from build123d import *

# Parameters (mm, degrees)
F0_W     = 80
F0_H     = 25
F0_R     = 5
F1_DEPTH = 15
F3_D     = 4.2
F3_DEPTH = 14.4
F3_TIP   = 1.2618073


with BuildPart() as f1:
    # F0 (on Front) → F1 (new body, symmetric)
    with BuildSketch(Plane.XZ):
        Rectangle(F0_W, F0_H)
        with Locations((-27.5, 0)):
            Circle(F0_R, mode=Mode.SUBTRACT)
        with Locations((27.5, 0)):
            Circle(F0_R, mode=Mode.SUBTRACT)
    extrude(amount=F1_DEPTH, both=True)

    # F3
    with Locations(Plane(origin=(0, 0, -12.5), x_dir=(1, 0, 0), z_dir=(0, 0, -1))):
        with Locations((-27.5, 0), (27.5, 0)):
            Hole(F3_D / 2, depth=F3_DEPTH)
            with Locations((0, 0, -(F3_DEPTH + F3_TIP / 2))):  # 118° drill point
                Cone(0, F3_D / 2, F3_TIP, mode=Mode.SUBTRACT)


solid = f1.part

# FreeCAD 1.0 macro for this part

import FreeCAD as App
import Part
import Sketcher

doc = App.newDocument("Part")
body = doc.addObject("PartDesign::Body", "Body")

# Sketch on XZ plane
sketch1 = body.newObject("Sketcher::SketchObject", "Sketch")
sketch1.AttachmentSupport = (doc.getObject("XZ_Plane"), [""])
sketch1.MapMode = "FlatFace"
sketch1.addGeometry([
    Part.LineSegment(App.Vector(-40, 12, 0), App.Vector(-40, -12, 0)),  # 0
    Part.LineSegment(App.Vector(-40, -12, 0), App.Vector(40, -12, 0)),  # 1
    Part.LineSegment(App.Vector(40, -12, 0), App.Vector(40, 12, 0)),  # 2
    Part.LineSegment(App.Vector(40, 12, 0), App.Vector(-40, 12, 0)),  # 3
    Part.Circle(App.Vector(-28, 0, 0), App.Vector(0, 0, 1), 5),  # 4
    Part.Circle(App.Vector(28, 0, 0), App.Vector(0, 0, 1), 5),  # 5
], False)
sketch1.addConstraint([
    Sketcher.Constraint("Coincident", 0, 2, 1, 1),
    Sketcher.Constraint("Coincident", 1, 2, 2, 1),
    Sketcher.Constraint("Coincident", 2, 2, 3, 1),
    Sketcher.Constraint("Coincident", 3, 2, 0, 1),
    Sketcher.Constraint("Vertical", 0),
    Sketcher.Constraint("Horizontal", 1),
    Sketcher.Constraint("Vertical", 2),
    Sketcher.Constraint("Horizontal", 3),
    Sketcher.Constraint("Equal", 4, 5),
    Sketcher.Constraint("Symmetric", 4, 3, 5, 3, -1, 1),
    Sketcher.Constraint("Symmetric", 0, 2, 2, 2, -1, 1),
    Sketcher.Constraint("PointOnObject", 4, 3, -1),
    Sketcher.Constraint("Diameter", 4, 10.0),
    Sketcher.Constraint("DistanceX", 1, 1, 1, 2, 80.0),
    Sketcher.Constraint("DistanceY", 0, 2, 0, 1, 25.0),
    Sketcher.Constraint("DistanceX", 4, 3, 5, 3, 55.0),
])
pad1 = body.newObject("PartDesign::Pad", "Pad")
pad1.Profile = sketch1
pad1.Length = 30
pad1.Midplane = True

# Sketch on XY plane
sketch2 = body.newObject("Sketcher::SketchObject", "Sketch001")
sketch2.AttachmentSupport = (doc.getObject("XY_Plane"), [""])
sketch2.MapMode = "FlatFace"
sketch2.AttachmentOffset = App.Placement(App.Vector(0, 0, -12.5), App.Rotation())
sketch2.addGeometry([
    Part.Circle(App.Vector(-27.5, 0, 0), App.Vector(0, 0, 1), 2.1),
    Part.Circle(App.Vector(27.5, 0, 0), App.Vector(0, 0, 1), 2.1),
], False)
sketch2.addConstraint([
    Sketcher.Constraint("Equal", 0, 1),
    Sketcher.Constraint("Symmetric", 0, 3, 1, 3, -1, 1),
    Sketcher.Constraint("PointOnObject", 0, 3, -1),
    Sketcher.Constraint("Diameter", 0, 4.2),
    Sketcher.Constraint("DistanceX", 0, 3, 1, 3, 55.0),
])
doc.recompute()
hole = body.newObject("PartDesign::Hole", "Hole")
hole.Profile = sketch2
hole.ThreadType = "None"
hole.Diameter = 4.2
hole.DepthType = "Dimension"
hole.Depth = 14.4
hole.DrillPoint = "Angled"
hole.DrillPointAngle = 118
hole.Reversed = True

doc.recompute()
